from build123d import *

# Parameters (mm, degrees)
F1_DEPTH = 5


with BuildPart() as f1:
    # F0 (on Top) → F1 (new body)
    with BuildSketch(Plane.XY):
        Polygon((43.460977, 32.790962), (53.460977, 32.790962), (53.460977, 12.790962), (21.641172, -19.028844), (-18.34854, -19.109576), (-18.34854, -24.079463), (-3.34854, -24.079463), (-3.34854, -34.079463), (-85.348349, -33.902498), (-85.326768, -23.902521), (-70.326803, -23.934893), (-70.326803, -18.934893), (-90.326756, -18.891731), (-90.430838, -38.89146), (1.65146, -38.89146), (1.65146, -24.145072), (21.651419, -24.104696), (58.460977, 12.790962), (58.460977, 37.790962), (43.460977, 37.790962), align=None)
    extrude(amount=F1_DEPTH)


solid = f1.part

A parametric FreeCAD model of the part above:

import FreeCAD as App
import Part
import Sketcher
Q = App.Units.Quantity

doc = App.newDocument("Part")
body = doc.addObject("PartDesign::Body", "Body")

sketch1 = body.newObject("Sketcher::SketchObject", "Sketch")
sketch1.AttachmentSupport = (doc.getObject("XY_Plane"), [""])
sketch1.MapMode = "FlatFace"
sketch1.addGeometry([
    Part.LineSegment(App.Vector(43.5, 32.8, 0), App.Vector(53.5, 32.8, 0)),
    Part.LineSegment(App.Vector(53.5, 32.8, 0), App.Vector(53.5, 12.8, 0)),
    Part.LineSegment(App.Vector(53.5, 12.8, 0), App.Vector(21.6, -19, 0)),
    Part.LineSegment(App.Vector(21.6, -19, 0), App.Vector(-18.3, -19.1, 0)),
    Part.LineSegment(App.Vector(-18.3, -19.1, 0), App.Vector(-18.3, -24.1, 0)),
    Part.LineSegment(App.Vector(-18.3, -24.1, 0), App.Vector(-3.3, -24.1, 0)),
    Part.LineSegment(App.Vector(-3.3, -24.1, 0), App.Vector(-3.3, -34.1, 0)),
    Part.LineSegment(App.Vector(-3.3, -34.1, 0), App.Vector(-85.3, -33.9, 0)),
    Part.LineSegment(App.Vector(-85.3, -33.9, 0), App.Vector(-85.3, -23.9, 0)),
    Part.LineSegment(App.Vector(-85.3, -23.9, 0), App.Vector(-70.3, -23.9, 0)),
    Part.LineSegment(App.Vector(-70.3, -23.9, 0), App.Vector(-70.3, -18.9, 0)),
    Part.LineSegment(App.Vector(-70.3, -18.9, 0), App.Vector(-90.3, -18.9, 0)),
    Part.LineSegment(App.Vector(-90.3, -18.9, 0), App.Vector(-90.4, -38.9, 0)),
    Part.LineSegment(App.Vector(-90.4, -38.9, 0), App.Vector(1.7, -38.9, 0)),
    Part.LineSegment(App.Vector(1.7, -38.9, 0), App.Vector(1.7, -24.1, 0)),
    Part.LineSegment(App.Vector(1.7, -24.1, 0), App.Vector(21.7, -24.1, 0)),
    Part.LineSegment(App.Vector(21.7, -24.1, 0), App.Vector(58.5, 12.8, 0)),
    Part.LineSegment(App.Vector(58.5, 12.8, 0), App.Vector(58.5, 37.8, 0)),
    Part.LineSegment(App.Vector(58.5, 37.8, 0), App.Vector(43.5, 37.8, 0)),
    Part.LineSegment(App.Vector(43.5, 37.8, 0), App.Vector(43.5, 32.8, 0)),
], False)
sketch1.addConstraint([
    Sketcher.Constraint("Coincident", 0, 2, 1, 1),
    Sketcher.Constraint("Coincident", 1, 2, 2, 1),
    Sketcher.Constraint("Coincident", 2, 2, 3, 1),
    Sketcher.Constraint("Coincident", 3, 2, 4, 1),
    Sketcher.Constraint("Coincident", 4, 2, 5, 1),
    Sketcher.Constraint("Coincident", 5, 2, 6, 1),
    Sketcher.Constraint("Coincident", 6, 2, 7, 1),
    Sketcher.Constraint("Coincident", 7, 2, 8, 1),
    Sketcher.Constraint("Coincident", 8, 2, 9, 1),
    Sketcher.Constraint("Coincident", 9, 2, 10, 1),
    Sketcher.Constraint("Coincident", 10, 2, 11, 1),
    Sketcher.Constraint("Coincident", 11, 2, 12, 1),
    Sketcher.Constraint("Coincident", 12, 2, 13, 1),
    Sketcher.Constraint("Coincident", 13, 2, 14, 1),
    Sketcher.Constraint("Coincident", 14, 2, 15, 1),
    Sketcher.Constraint("Coincident", 15, 2, 16, 1),
    Sketcher.Constraint("Coincident", 16, 2, 17, 1),
    Sketcher.Constraint("Coincident", 17, 2, 18, 1),
    Sketcher.Constraint("Coincident", 18, 2, 19, 1),
    Sketcher.Constraint("Coincident", 19, 2, 0, 1),
    Sketcher.Constraint("Horizontal", 0),
    Sketcher.Constraint("Vertical", 1),
    Sketcher.Constraint("Vertical", 4),
    Sketcher.Constraint("Horizontal", 5),
    Sketcher.Constraint("Vertical", 6),
    Sketcher.Constraint("Vertical", 10),
    Sketcher.Constraint("Horizontal", 13),
    Sketcher.Constraint("Vertical", 14),
    Sketcher.Constraint("Vertical", 17),
    Sketcher.Constraint("Horizontal", 18),
    Sketcher.Constraint("Vertical", 19),
    Sketcher.Constraint("Perpendicular", 7, 8),
    Sketcher.Constraint("Perpendicular", 8, 9),
    Sketcher.Constraint("Parallel", 9, 11),
    Sketcher.Constraint("Parallel", 3, 15),
    Sketcher.Constraint("Horizontal", 1, 2, 16, 2),
    Sketcher.Constraint("Equal", 5, 18),
    Sketcher.Constraint("Equal", 0, 6),
    Sketcher.Constraint("Equal", 10, 19),
    Sketcher.Constraint("Equal", 11, 12),
    Sketcher.Constraint("Equal", 12, 15),
    Sketcher.Constraint("DistanceX", 0, 1, 0, 2, Q("10 mm")),
    Sketcher.Constraint("DistanceX", 5, 1, 5, 2, Q("15 mm")),
    Sketcher.Constraint("DistanceY", 1, 2, 1, 1, Q("20 mm")),
    Sketcher.Constraint("DistanceY", 10, 1, 10, 2, Q("5 mm")),
    Sketcher.Constraint("Angle", 2, Q("-134.999999 deg")),
    Sketcher.Constraint("Distance", 2, Q("45 mm")),
    Sketcher.Constraint("Distance", 7, Q("82 mm")),
    Sketcher.Constraint("Distance", 8, Q("10 mm")),
    Sketcher.Constraint("Distance", 9, Q("15 mm")),
    Sketcher.Constraint("Distance", 11, Q("20 mm")),
    Sketcher.Constraint("DistanceX", 6, 2, 13, 2, Q("5 mm")),
    Sketcher.Constraint("DistanceY", 14, 1, 14, 2, Q("14.746388 mm")),
    Sketcher.Constraint("DistanceX", 13, 1, 13, 2, Q("92.082298 mm")),
    Sketcher.Constraint("DistanceY", 4, 2, 4, 1, Q("4.969887 mm")),
    Sketcher.Constraint("DistanceX", 3, 2, -1, 1, Q("18.34854 mm")),
    Sketcher.Constraint("DistanceX", 8, 2, -1, 1, Q("85.326768 mm")),
    Sketcher.Constraint("DistanceY", 8, 2, -1, 1, Q("23.902521 mm")),
    Sketcher.Constraint("DistanceX", 3, 2, 2, 2, Q("39.989712 mm")),
    Sketcher.Constraint("DistanceY", 3, 2, 1, 2, Q("31.900538 mm")),
])
pad1 = body.newObject("PartDesign::Pad", "Pad")
pad1.Profile = sketch1
pad1.Length = 5

doc.recompute()
